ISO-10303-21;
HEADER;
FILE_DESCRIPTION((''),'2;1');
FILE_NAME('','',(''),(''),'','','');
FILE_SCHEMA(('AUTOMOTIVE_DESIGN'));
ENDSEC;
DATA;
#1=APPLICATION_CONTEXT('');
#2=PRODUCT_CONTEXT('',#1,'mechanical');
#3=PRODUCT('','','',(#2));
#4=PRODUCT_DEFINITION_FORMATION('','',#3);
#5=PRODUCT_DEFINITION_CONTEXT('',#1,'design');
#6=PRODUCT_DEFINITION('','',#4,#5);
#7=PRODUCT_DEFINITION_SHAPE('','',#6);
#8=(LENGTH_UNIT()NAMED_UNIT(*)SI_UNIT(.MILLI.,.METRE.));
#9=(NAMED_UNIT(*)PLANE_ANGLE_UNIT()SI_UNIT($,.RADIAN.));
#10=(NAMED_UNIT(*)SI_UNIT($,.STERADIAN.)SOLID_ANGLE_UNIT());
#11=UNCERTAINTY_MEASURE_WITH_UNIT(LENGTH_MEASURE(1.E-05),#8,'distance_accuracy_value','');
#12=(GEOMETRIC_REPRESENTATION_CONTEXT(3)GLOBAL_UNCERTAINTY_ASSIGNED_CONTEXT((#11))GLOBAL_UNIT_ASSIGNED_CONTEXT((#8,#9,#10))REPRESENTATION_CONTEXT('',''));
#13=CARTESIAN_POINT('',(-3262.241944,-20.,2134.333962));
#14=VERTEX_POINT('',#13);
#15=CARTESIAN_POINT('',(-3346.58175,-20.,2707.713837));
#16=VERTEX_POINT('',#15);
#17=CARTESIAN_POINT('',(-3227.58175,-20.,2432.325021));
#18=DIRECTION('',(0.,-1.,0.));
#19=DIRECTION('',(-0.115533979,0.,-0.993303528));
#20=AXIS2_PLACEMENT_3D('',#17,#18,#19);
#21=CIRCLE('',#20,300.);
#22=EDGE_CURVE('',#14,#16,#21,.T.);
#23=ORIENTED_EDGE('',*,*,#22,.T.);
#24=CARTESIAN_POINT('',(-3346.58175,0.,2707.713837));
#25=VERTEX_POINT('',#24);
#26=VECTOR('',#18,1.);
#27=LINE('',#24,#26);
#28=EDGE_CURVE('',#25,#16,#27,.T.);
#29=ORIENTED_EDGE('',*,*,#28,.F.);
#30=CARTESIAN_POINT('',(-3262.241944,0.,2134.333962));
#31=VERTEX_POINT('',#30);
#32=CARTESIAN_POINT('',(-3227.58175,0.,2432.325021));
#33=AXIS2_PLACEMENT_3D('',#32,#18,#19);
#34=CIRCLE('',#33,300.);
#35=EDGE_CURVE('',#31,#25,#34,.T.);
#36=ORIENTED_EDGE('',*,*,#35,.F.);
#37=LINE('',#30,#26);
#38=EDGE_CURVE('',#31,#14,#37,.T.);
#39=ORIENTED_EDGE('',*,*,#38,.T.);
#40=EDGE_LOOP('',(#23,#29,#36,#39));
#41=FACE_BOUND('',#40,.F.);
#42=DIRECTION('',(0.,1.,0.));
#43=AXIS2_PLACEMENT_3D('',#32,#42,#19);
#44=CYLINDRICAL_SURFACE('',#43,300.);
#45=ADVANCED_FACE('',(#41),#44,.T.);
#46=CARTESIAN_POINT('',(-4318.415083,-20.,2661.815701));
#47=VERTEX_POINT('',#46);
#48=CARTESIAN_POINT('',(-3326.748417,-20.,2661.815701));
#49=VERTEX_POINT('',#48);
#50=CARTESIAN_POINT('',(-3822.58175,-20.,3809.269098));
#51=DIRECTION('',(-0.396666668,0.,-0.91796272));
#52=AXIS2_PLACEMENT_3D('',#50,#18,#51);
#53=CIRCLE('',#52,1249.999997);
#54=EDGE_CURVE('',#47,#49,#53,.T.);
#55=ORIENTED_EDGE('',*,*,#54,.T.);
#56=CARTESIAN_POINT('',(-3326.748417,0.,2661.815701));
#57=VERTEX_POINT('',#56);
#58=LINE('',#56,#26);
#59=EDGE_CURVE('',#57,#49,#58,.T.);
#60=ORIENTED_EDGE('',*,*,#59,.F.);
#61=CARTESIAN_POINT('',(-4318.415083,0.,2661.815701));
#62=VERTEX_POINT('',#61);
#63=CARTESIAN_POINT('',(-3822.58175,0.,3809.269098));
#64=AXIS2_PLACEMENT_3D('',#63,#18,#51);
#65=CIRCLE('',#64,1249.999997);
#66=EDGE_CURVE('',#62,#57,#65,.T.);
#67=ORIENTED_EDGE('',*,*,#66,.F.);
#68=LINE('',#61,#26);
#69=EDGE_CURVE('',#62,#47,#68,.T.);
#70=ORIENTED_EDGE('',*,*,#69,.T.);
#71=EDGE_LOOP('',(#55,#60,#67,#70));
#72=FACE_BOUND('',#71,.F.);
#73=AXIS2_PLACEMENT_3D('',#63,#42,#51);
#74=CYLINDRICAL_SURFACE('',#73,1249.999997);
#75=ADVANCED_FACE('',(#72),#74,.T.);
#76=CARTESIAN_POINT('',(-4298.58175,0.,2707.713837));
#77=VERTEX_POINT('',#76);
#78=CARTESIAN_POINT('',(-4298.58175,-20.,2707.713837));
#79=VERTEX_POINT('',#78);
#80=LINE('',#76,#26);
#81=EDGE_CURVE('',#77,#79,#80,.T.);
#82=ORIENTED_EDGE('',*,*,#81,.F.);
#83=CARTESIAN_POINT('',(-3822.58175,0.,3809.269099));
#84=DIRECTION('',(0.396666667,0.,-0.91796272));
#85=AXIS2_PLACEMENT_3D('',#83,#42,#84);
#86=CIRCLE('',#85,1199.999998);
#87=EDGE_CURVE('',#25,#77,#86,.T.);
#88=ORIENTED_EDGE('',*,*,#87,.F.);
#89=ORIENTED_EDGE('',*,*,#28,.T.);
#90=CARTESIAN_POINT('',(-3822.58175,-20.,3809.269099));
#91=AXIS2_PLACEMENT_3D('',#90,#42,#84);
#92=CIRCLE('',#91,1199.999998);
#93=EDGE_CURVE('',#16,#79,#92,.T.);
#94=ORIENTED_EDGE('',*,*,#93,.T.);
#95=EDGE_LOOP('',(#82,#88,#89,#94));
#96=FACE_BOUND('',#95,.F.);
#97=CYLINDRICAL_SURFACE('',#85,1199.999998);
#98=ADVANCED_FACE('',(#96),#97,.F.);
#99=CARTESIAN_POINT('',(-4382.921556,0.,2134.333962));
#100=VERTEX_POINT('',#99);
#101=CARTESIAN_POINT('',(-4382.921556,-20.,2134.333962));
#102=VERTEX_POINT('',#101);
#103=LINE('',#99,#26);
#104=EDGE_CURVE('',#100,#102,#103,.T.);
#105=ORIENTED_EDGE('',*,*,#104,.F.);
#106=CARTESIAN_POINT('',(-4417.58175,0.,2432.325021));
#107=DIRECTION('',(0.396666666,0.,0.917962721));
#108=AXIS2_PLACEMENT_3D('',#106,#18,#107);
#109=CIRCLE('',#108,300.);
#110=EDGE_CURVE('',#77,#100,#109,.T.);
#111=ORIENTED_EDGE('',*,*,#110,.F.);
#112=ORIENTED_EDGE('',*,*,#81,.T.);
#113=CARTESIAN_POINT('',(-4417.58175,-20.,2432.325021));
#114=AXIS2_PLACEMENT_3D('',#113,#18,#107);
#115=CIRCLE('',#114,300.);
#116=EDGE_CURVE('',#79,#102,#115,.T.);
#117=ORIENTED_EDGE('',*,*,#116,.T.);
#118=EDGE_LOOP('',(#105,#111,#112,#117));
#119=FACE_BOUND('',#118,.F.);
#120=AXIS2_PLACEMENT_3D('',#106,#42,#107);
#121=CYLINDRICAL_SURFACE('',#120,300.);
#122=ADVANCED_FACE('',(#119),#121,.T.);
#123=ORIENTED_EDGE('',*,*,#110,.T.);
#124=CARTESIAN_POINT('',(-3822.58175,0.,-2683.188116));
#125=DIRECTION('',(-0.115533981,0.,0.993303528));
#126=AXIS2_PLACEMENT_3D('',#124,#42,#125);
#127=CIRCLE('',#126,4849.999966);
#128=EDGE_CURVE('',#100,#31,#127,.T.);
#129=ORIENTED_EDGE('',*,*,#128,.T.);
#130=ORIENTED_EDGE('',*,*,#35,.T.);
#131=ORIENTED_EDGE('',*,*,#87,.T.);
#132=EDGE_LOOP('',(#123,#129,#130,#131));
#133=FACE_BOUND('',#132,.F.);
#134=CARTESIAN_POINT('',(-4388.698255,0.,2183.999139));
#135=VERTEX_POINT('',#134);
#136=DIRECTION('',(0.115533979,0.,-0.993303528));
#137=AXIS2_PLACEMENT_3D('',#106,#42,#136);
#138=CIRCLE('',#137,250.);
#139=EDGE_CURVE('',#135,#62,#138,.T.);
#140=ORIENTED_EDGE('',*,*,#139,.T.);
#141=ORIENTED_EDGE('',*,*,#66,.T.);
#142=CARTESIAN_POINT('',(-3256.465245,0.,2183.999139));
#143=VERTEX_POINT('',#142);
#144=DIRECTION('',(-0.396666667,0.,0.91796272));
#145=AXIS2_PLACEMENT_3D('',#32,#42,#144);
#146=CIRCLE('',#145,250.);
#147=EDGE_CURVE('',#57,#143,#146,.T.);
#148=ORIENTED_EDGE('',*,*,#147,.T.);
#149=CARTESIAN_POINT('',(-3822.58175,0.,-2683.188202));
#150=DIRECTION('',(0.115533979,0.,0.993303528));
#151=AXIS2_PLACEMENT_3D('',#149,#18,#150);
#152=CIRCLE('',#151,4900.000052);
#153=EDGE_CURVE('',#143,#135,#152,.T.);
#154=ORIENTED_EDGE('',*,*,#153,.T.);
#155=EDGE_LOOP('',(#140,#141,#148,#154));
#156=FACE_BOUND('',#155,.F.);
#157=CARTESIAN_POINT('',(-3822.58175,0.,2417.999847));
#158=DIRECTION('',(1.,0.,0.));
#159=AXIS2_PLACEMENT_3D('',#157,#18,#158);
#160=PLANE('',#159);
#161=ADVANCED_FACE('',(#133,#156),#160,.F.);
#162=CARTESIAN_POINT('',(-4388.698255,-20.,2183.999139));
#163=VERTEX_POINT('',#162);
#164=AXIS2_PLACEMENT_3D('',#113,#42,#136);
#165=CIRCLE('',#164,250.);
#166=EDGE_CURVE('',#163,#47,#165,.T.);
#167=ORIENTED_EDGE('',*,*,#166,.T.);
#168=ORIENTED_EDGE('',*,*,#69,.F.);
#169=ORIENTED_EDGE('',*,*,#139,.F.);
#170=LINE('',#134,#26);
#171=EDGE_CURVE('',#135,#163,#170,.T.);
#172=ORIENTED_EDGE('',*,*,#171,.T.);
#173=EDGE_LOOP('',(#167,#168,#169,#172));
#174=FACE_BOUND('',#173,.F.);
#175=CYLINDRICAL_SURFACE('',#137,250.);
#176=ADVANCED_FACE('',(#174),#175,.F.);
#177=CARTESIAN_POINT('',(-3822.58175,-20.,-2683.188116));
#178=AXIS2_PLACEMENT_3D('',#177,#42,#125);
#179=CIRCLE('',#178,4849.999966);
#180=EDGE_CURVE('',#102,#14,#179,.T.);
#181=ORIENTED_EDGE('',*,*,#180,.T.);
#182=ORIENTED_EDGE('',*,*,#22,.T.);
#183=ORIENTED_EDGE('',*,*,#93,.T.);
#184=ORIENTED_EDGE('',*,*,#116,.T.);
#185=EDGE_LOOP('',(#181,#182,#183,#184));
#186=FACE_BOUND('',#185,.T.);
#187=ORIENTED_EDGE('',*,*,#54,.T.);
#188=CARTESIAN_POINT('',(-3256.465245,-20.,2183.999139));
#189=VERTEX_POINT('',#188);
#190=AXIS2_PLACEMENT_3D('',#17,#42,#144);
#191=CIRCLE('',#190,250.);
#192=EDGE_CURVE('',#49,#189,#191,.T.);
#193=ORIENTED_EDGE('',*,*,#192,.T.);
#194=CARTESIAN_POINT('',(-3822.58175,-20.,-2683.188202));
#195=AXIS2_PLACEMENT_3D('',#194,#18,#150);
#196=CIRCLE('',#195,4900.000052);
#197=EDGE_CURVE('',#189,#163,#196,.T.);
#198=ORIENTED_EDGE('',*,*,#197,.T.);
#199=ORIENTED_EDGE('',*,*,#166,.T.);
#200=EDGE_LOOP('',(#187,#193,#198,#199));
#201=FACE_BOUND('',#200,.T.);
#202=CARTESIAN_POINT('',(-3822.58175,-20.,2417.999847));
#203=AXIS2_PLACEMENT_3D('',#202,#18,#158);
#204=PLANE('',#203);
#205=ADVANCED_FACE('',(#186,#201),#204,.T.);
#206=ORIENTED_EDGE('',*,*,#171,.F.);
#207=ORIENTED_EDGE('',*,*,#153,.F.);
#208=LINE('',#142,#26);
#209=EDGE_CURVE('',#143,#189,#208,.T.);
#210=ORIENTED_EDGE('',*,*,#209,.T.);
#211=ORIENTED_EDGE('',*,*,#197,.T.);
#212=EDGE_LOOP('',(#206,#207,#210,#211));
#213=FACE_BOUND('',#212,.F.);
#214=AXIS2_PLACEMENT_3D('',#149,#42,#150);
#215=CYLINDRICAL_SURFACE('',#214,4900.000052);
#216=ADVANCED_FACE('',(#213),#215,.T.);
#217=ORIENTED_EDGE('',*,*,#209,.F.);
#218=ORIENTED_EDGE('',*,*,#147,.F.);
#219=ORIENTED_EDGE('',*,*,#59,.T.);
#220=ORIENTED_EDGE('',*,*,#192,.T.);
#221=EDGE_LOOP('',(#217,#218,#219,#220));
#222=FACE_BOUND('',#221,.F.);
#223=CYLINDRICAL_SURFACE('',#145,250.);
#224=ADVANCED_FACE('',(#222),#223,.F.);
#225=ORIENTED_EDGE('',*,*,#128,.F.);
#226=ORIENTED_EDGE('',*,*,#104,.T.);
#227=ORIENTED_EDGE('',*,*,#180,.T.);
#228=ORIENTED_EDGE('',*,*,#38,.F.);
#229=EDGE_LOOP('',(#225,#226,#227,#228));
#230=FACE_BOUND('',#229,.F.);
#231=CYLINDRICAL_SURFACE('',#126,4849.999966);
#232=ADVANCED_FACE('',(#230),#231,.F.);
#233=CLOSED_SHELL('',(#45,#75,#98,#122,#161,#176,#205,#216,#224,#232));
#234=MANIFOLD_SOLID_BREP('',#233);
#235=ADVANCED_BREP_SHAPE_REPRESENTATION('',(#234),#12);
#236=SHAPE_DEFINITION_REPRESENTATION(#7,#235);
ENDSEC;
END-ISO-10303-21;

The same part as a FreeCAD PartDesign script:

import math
import FreeCAD as App
import Part
import Sketcher
from FreeCAD import Vector

doc = App.newDocument("Part")
body = doc.addObject("PartDesign::Body", "Body")

sketch1 = doc.addObject("Sketcher::SketchObject", "Sketch")
body.addObject(sketch1)
sketch1.AttachmentSupport = (doc.XZ_Plane, [""])
sketch1.MapMode = "FlatFace"
sketch1.addGeometry([
    Part.ArcOfCircle(Part.Circle(Vector(-3823, 3809, 0), Vector(0, 0, 1), 1200), math.radians(-113), math.radians(-67)),
    Part.ArcOfCircle(Part.Circle(Vector(-4418, 2432, 0), Vector(0, 0, 1), 300), math.radians(67), math.radians(277)),
    Part.ArcOfCircle(Part.Circle(Vector(-3823, -2683, 0), Vector(0, 0, 1), 4850), math.radians(83.37), math.radians(96.63)),
    Part.ArcOfCircle(Part.Circle(Vector(-3228, 2432, 0), Vector(0, 0, 1), 300), math.radians(-97), math.radians(113)),
    Part.ArcOfCircle(Part.Circle(Vector(-3823, -2683, 0), Vector(0, 0, 1), 4900), math.radians(83.37), math.radians(96.63)),
    Part.ArcOfCircle(Part.Circle(Vector(-4418, 2432, 0), Vector(0, 0, 1), 250), math.radians(67), math.radians(277)),
    Part.ArcOfCircle(Part.Circle(Vector(-3823, 3809, 0), Vector(0, 0, 1), 1250), math.radians(-113), math.radians(-67)),
    Part.ArcOfCircle(Part.Circle(Vector(-3228, 2432, 0), Vector(0, 0, 1), 250), math.radians(-97), math.radians(113)),
], False)
sketch1.addConstraint([
    Sketcher.Constraint("Tangent", 0, 1, 1, 1),
    Sketcher.Constraint("Tangent", 1, 2, 2, 2),
    Sketcher.Constraint("Tangent", 2, 1, 3, 1),
    Sketcher.Constraint("Tangent", 3, 2, 0, 2),
    Sketcher.Constraint("Tangent", 4, 2, 5, 2),
    Sketcher.Constraint("Tangent", 5, 1, 6, 1),
    Sketcher.Constraint("Tangent", 6, 2, 7, 2),
    Sketcher.Constraint("Tangent", 7, 1, 4, 1),
    Sketcher.Constraint("Coincident", 5, 3, 1, 3),
    Sketcher.Constraint("Coincident", 6, 3, 0, 3),
    Sketcher.Constraint("Coincident", 7, 3, 3, 3),
    Sketcher.Constraint("Equal", 1, 3),
    Sketcher.Constraint("Horizontal", 1, 3, 3, 3),
    Sketcher.Constraint("Radius", 0, 1199.999998),
    Sketcher.Constraint("Radius", 1, 300.0),
    Sketcher.Constraint("Radius", 5, 250.0),
    Sketcher.Constraint("DistanceX", 1, 3, 0, 3, 595.0),
    Sketcher.Constraint("Radius", 2, 4849.999966),
    Sketcher.Constraint("Radius", 4, 4900.000052),
    Sketcher.Constraint("DistanceY", -1, 1, 0, 3, 3809.269099),
    Sketcher.Constraint("DistanceX", 0, 3, -1, 1, 3822.58175),
])
pad1 = doc.addObject("PartDesign::Pad", "Pad")
body.addObject(pad1)
pad1.Profile = sketch1
pad1.Length = 20

doc.recompute()
